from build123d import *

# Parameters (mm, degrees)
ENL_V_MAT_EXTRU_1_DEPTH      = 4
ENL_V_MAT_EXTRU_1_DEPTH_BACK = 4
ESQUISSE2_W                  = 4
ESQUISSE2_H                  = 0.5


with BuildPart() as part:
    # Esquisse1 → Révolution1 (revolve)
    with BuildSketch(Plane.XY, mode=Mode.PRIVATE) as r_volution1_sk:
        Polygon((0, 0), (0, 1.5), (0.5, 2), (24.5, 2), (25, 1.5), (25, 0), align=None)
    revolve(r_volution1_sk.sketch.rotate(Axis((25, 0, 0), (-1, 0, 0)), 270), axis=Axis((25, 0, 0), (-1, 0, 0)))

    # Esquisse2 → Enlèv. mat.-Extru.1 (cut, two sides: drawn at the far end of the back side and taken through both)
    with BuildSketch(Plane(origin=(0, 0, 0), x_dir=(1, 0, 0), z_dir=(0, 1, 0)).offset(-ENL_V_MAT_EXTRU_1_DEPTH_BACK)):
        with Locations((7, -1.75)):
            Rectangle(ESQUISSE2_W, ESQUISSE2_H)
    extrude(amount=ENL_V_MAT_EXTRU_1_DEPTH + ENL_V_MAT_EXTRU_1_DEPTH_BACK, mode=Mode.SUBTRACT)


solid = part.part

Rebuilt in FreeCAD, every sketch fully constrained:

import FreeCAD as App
import Part
import Sketcher
Q = App.Units.Quantity

doc = App.newDocument("Part")
body = doc.addObject("PartDesign::Body", "Body")

sketch1 = body.newObject("Sketcher::SketchObject", "Sketch")
sketch1.AttachmentSupport = (doc.getObject("XY_Plane"), [""])
sketch1.MapMode = "FlatFace"
sketch1.addGeometry([
    Part.LineSegment(App.Vector(0, 1.5, 0), App.Vector(0, 0, 0)),
    Part.LineSegment(App.Vector(0, 0, 0), App.Vector(25, 0, 0)),
    Part.LineSegment(App.Vector(25, 0, 0), App.Vector(25, 1.5, 0)),
    Part.LineSegment(App.Vector(25, 1.5, 0), App.Vector(24.5, 2, 0)),
    Part.LineSegment(App.Vector(24.5, 2, 0), App.Vector(0.5, 2, 0)),
    Part.LineSegment(App.Vector(0.5, 2, 0), App.Vector(0, 1.5, 0)),
], False)
sketch1.addConstraint([
    Sketcher.Constraint("Coincident", 0, 2, 1, 1),
    Sketcher.Constraint("Coincident", 1, 2, 2, 1),
    Sketcher.Constraint("Coincident", 2, 2, 3, 1),
    Sketcher.Constraint("Coincident", 3, 2, 4, 1),
    Sketcher.Constraint("Coincident", 4, 2, 5, 1),
    Sketcher.Constraint("Coincident", 5, 2, 0, 1),
    Sketcher.Constraint("Vertical", 0),
    Sketcher.Constraint("Horizontal", 1),
    Sketcher.Constraint("Vertical", 2),
    Sketcher.Constraint("Horizontal", 4),
    Sketcher.Constraint("Coincident", 0, 2, -1, 1),
    Sketcher.Constraint("Perpendicular", 3, 5),
    Sketcher.Constraint("Horizontal", 2, 2, 5, 2),
    Sketcher.Constraint("Equal", 3, 5),
    Sketcher.Constraint("DistanceX", 1, 1, 1, 2, Q("25 mm")),
    Sketcher.Constraint("DistanceX", 4, 2, 4, 1, Q("24 mm")),
    Sketcher.Constraint("DistanceY", 0, 2, 0, 1, Q("1.5 mm")),
])
revolution = body.newObject("PartDesign::Revolution", "Revolution")
revolution.Profile = sketch1
revolution.ReferenceAxis = (sketch1, ["H_Axis"])
revolution.Angle = 360

sketch2 = body.newObject("Sketcher::SketchObject", "Sketch001")
sketch2.AttachmentSupport = (doc.getObject("XZ_Plane"), [""])
sketch2.MapMode = "FlatFace"
sketch2.addGeometry([
    Part.LineSegment(App.Vector(5, 1.5, 0), App.Vector(5, 2, 0)),
    Part.LineSegment(App.Vector(5, 2, 0), App.Vector(9, 2, 0)),
    Part.LineSegment(App.Vector(9, 2, 0), App.Vector(9, 1.5, 0)),
    Part.LineSegment(App.Vector(9, 1.5, 0), App.Vector(5, 1.5, 0)),
], False)
sketch2.addConstraint([
    Sketcher.Constraint("Coincident", 0, 2, 1, 1),
    Sketcher.Constraint("Coincident", 1, 2, 2, 1),
    Sketcher.Constraint("Coincident", 2, 2, 3, 1),
    Sketcher.Constraint("Coincident", 3, 2, 0, 1),
    Sketcher.Constraint("Vertical", 0),
    Sketcher.Constraint("Horizontal", 1),
    Sketcher.Constraint("Vertical", 2),
    Sketcher.Constraint("Horizontal", 3),
    Sketcher.Constraint("DistanceX", 1, 1, 1, 2, Q("4 mm")),
    Sketcher.Constraint("DistanceY", 0, 1, 0, 2, Q("0.5 mm")),
    Sketcher.Constraint("DistanceX", -1, 1, 0, 2, Q("5 mm")),
    Sketcher.Constraint("DistanceY", -1, 1, 0, 2, Q("2 mm")),
])
pocket1 = body.newObject("PartDesign::Pocket", "Pocket")
pocket1.Profile = sketch2
pocket1.Type = "ThroughAll"
pocket1.Midplane = True

doc.recompute()
